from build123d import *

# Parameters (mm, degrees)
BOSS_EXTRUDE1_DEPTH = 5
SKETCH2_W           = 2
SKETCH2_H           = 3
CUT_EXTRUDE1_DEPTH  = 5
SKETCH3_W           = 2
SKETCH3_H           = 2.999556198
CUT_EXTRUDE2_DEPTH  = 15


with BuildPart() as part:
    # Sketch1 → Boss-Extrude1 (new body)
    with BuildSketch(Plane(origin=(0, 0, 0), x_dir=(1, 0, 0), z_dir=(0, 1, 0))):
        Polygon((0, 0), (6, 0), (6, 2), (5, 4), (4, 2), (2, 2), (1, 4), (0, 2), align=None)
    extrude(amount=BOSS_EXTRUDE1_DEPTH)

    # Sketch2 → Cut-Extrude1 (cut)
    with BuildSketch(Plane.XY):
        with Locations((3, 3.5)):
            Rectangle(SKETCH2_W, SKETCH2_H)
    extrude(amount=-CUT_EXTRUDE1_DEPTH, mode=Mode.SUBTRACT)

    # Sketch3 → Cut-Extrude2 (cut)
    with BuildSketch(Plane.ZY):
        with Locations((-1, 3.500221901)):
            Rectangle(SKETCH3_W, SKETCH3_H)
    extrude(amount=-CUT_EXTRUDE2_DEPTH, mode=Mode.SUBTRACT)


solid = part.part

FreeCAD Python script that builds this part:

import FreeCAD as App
import Part
import Sketcher

V = App.Vector

doc = App.newDocument("Part")
body = doc.addObject("PartDesign::Body", "Body")

# Sketch on XZ plane
sketch1 = body.newObject("Sketcher::SketchObject", "Sketch")
sketch1.AttachmentSupport = (doc.getObject("XZ_Plane"), [""])
sketch1.MapMode = "FlatFace"
sketch1.addGeometry([
    Part.LineSegment(V(0, 0, 0), V(6, 0, 0)),  # 0
    Part.LineSegment(V(6, 0, 0), V(6, -2, 0)),  # 1
    Part.LineSegment(V(6, -2, 0), V(5, -4, 0)),  # 2
    Part.LineSegment(V(5, -4, 0), V(4, -2, 0)),  # 3
    Part.LineSegment(V(4, -2, 0), V(2, -2, 0)),  # 4
    Part.LineSegment(V(2, -2, 0), V(1, -4, 0)),  # 5
    Part.LineSegment(V(1, -4, 0), V(0, -2, 0)),  # 6
    Part.LineSegment(V(0, -2, 0), V(0, 0, 0)),  # 7
], False)
sketch1.addConstraint([
    Sketcher.Constraint("Coincident", 0, 2, 1, 1),
    Sketcher.Constraint("Coincident", 1, 2, 2, 1),
    Sketcher.Constraint("Coincident", 2, 2, 3, 1),
    Sketcher.Constraint("Coincident", 3, 2, 4, 1),
    Sketcher.Constraint("Coincident", 4, 2, 5, 1),
    Sketcher.Constraint("Coincident", 5, 2, 6, 1),
    Sketcher.Constraint("Coincident", 6, 2, 7, 1),
    Sketcher.Constraint("Coincident", 7, 2, 0, 1),
    Sketcher.Constraint("Horizontal", 0),
    Sketcher.Constraint("Vertical", 1),
    Sketcher.Constraint("Horizontal", 4),
    Sketcher.Constraint("Vertical", 7),
    Sketcher.Constraint("Coincident", 7, 2, -1, 1),
    Sketcher.Constraint("Parallel", 2, 5),
    Sketcher.Constraint("Parallel", 3, 6),
    Sketcher.Constraint("Horizontal", 1, 2, 3, 2),
    Sketcher.Constraint("Horizontal", 2, 2, 5, 2),
    Sketcher.Constraint("Horizontal", 4, 2, 6, 2),
    Sketcher.Constraint("Equal", 4, 1),
    Sketcher.Constraint("Equal", 2, 3),
    Sketcher.Constraint("DistanceX", 0, 1, 0, 2, 6.0),
    Sketcher.Constraint("DistanceX", 4, 2, 4, 1, 2.0),
    Sketcher.Constraint("DistanceY", 2, 2, -1, 1, 4.0),
])
pad1 = body.newObject("PartDesign::Pad", "Pad")
pad1.Profile = sketch1
pad1.Length = 5
pad1.Reversed = True

# Sketch on XY plane
sketch2 = body.newObject("Sketcher::SketchObject", "Sketch001")
sketch2.AttachmentSupport = (doc.getObject("XY_Plane"), [""])
sketch2.MapMode = "FlatFace"
sketch2.addGeometry([
    Part.LineSegment(V(2, 5, 0), V(2, 2, 0)),
    Part.LineSegment(V(2, 2, 0), V(4, 2, 0)),
    Part.LineSegment(V(4, 2, 0), V(4, 5, 0)),
    Part.LineSegment(V(4, 5, 0), V(2, 5, 0)),
], False)
sketch2.addConstraint([
    Sketcher.Constraint("Coincident", 0, 2, 1, 1),
    Sketcher.Constraint("Coincident", 1, 2, 2, 1),
    Sketcher.Constraint("Coincident", 2, 2, 3, 1),
    Sketcher.Constraint("Coincident", 3, 2, 0, 1),
    Sketcher.Constraint("Vertical", 0),
    Sketcher.Constraint("Horizontal", 1),
    Sketcher.Constraint("Vertical", 2),
    Sketcher.Constraint("Horizontal", 3),
    Sketcher.Constraint("DistanceX", 1, 1, 1, 2, 2.0),
    Sketcher.Constraint("DistanceY", 0, 2, 0, 1, 3.0),
    Sketcher.Constraint("DistanceX", -1, 1, 0, 2, 2.0),
    Sketcher.Constraint("DistanceY", -1, 1, 0, 2, 2.0),
])
pocket1 = body.newObject("PartDesign::Pocket", "Pocket")
pocket1.Profile = sketch2
pocket1.Length = 5

# Sketch on YZ plane
sketch3 = body.newObject("Sketcher::SketchObject", "Sketch002")
sketch3.AttachmentSupport = (doc.getObject("YZ_Plane"), [""])
sketch3.MapMode = "FlatFace"
sketch3.addGeometry([
    Part.LineSegment(V(5, -2, 0), V(2, -2, 0)),
    Part.LineSegment(V(2, -2, 0), V(2, 0, 0)),
    Part.LineSegment(V(2, 0, 0), V(5, 0, 0)),
    Part.LineSegment(V(5, 0, 0), V(5, -2, 0)),
], False)
sketch3.addConstraint([
    Sketcher.Constraint("Coincident", 0, 2, 1, 1),
    Sketcher.Constraint("Coincident", 1, 2, 2, 1),
    Sketcher.Constraint("Coincident", 2, 2, 3, 1),
    Sketcher.Constraint("Coincident", 3, 2, 0, 1),
    Sketcher.Constraint("Horizontal", 0),
    Sketcher.Constraint("Vertical", 1),
    Sketcher.Constraint("Horizontal", 2),
    Sketcher.Constraint("Vertical", 3),
    Sketcher.Constraint("PointOnObject", 1, 2, -1),
    Sketcher.Constraint("DistanceY", 1, 1, 1, 2, 2.0),
    Sketcher.Constraint("DistanceX", -1, 1, 2, 2, 5.0),
    Sketcher.Constraint("DistanceX", 0, 2, 0, 1, 2.999556),
])
pocket2 = body.newObject("PartDesign::Pocket", "Pocket001")
pocket2.Profile = sketch3
pocket2.Length = 15
pocket2.Reversed = True

doc.recompute()
